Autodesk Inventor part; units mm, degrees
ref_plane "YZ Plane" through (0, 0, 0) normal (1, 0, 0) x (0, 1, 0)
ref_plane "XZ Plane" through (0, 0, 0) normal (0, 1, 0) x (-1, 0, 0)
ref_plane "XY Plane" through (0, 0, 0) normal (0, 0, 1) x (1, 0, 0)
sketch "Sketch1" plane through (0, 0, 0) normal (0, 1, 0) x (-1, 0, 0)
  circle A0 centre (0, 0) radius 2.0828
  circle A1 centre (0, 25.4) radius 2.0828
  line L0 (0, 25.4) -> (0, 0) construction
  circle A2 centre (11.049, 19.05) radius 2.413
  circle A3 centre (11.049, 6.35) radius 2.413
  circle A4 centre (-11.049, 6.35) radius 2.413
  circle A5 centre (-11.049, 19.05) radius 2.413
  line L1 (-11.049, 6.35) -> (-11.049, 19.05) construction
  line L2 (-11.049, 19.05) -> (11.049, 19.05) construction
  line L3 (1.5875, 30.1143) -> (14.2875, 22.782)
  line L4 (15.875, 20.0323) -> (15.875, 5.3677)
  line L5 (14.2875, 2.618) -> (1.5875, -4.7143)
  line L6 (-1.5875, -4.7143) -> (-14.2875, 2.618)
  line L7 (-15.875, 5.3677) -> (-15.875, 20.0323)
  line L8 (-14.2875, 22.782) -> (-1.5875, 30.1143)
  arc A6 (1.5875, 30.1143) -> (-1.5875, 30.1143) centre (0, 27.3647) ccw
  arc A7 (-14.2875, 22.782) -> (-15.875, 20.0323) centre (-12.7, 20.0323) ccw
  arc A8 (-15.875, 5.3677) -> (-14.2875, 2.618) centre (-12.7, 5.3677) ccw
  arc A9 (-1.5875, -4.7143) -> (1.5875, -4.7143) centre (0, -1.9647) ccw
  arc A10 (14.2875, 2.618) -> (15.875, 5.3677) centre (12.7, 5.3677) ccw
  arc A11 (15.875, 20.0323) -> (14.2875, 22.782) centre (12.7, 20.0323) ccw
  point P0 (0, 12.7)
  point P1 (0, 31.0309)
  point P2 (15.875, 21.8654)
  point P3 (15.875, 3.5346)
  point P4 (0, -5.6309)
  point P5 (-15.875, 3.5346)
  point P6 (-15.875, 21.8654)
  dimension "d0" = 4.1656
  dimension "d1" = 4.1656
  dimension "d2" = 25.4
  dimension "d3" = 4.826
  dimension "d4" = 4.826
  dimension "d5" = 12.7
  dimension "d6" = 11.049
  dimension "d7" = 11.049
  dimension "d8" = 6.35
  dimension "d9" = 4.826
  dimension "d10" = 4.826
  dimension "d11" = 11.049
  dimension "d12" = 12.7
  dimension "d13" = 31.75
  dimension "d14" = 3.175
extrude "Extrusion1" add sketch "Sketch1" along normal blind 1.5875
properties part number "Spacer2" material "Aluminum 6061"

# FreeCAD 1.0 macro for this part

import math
import FreeCAD as App
import Part
import Sketcher

V = App.Vector
Q = App.Units.Quantity

doc = App.newDocument("Part")
body = doc.addObject("PartDesign::Body", "Body")

# Sketch on XZ plane
sketch1 = body.newObject("Sketcher::SketchObject", "Sketch")
sketch1.AttachmentSupport = (doc.getObject("XZ_Plane"), [""])
sketch1.MapMode = "FlatFace"
sketch1.addGeometry([
    Part.LineSegment(V(-14.3, 22.8, 0), V(-1.6, 30.1, 0)),  # 0
    Part.ArcOfCircle(Part.Circle(V(0, 27.4, 0), V(0, 0, 1), 3.2), math.radians(60), math.radians(120)),  # 1
    Part.LineSegment(V(1.6, 30.1, 0), V(14.3, 22.8, 0)),  # 2
    Part.ArcOfCircle(Part.Circle(V(12.7, 20, 0), V(0, 0, 1), 3.2), math.radians(0), math.radians(60)),  # 3
    Part.LineSegment(V(15.9, 20, 0), V(15.9, 5.4, 0)),  # 4
    Part.ArcOfCircle(Part.Circle(V(12.7, 5.4, 0), V(0, 0, 1), 3.2), math.radians(-60), math.radians(0)),  # 5
    Part.LineSegment(V(14.3, 2.6, 0), V(1.6, -4.7, 0)),  # 6
    Part.ArcOfCircle(Part.Circle(V(0, -2, 0), V(0, 0, 1), 3.2), math.radians(-120), math.radians(-60)),  # 7
    Part.LineSegment(V(-1.6, -4.7, 0), V(-14.3, 2.6, 0)),  # 8
    Part.ArcOfCircle(Part.Circle(V(-12.7, 5.4, 0), V(0, 0, 1), 3.2), math.radians(180), math.radians(240)),  # 9
    Part.LineSegment(V(-15.9, 5.4, 0), V(-15.9, 20, 0)),  # 10
    Part.ArcOfCircle(Part.Circle(V(-12.7, 20, 0), V(0, 0, 1), 3.2), math.radians(120), math.radians(180)),  # 11
    Part.Circle(V(11, 6.3, 0), V(0, 0, 1), 2.4),  # 12
    Part.Circle(V(0, 0, 0), V(0, 0, 1), 2.1),  # 13
    Part.Circle(V(-11, 6.3, 0), V(0, 0, 1), 2.4),  # 14
    Part.Circle(V(11, 19.1, 0), V(0, 0, 1), 2.4),  # 15
    Part.Circle(V(-11, 19.1, 0), V(0, 0, 1), 2.4),  # 16
    Part.Circle(V(0, 25.4, 0), V(0, 0, 1), 2.1),  # 17
], False)
sketch1.addConstraint([
    Sketcher.Constraint("Tangent", 0, 2, 1, 2),
    Sketcher.Constraint("Tangent", 1, 1, 2, 1),
    Sketcher.Constraint("Tangent", 2, 2, 3, 2),
    Sketcher.Constraint("Tangent", 3, 1, 4, 1),
    Sketcher.Constraint("Tangent", 4, 2, 5, 2),
    Sketcher.Constraint("Tangent", 5, 1, 6, 1),
    Sketcher.Constraint("Tangent", 6, 2, 7, 2),
    Sketcher.Constraint("Tangent", 7, 1, 8, 1),
    Sketcher.Constraint("Tangent", 8, 2, 9, 2),
    Sketcher.Constraint("Tangent", 9, 1, 10, 1),
    Sketcher.Constraint("Tangent", 10, 2, 11, 2),
    Sketcher.Constraint("Tangent", 11, 1, 0, 1),
    Sketcher.Constraint("Vertical", 4),
    Sketcher.Constraint("Vertical", 10),
    Sketcher.Constraint("Coincident", 13, 3, -1, 1),
    Sketcher.Constraint("Equal", 1, 3),
    Sketcher.Constraint("Equal", 3, 5),
    Sketcher.Constraint("Equal", 5, 7),
    Sketcher.Constraint("Equal", 7, 9),
    Sketcher.Constraint("Equal", 9, 11),
    Sketcher.Constraint("Equal", 12, 14),
    Sketcher.Constraint("Equal", 14, 15),
    Sketcher.Constraint("Equal", 15, 16),
    Sketcher.Constraint("Equal", 13, 17),
    Sketcher.Constraint("Symmetric", 5, 3, 9, 3, -2),
    Sketcher.Constraint("Symmetric", 12, 3, 14, 3, -2),
    Sketcher.Constraint("Symmetric", 15, 3, 16, 3, -2),
    Sketcher.Constraint("Symmetric", 0, 2, 1, 1, -2),
    Sketcher.Constraint("PointOnObject", 7, 3, -2),
    Sketcher.Constraint("PointOnObject", 17, 3, -2),
    Sketcher.Constraint("Parallel", 0, 6),
    Sketcher.Constraint("Vertical", 12, 3, 15, 3),
    Sketcher.Constraint("Diameter", 12, Q("0.19 in")),
    Sketcher.Constraint("Diameter", 13, Q("0.164 in")),
    Sketcher.Constraint("DistanceY", -1, 1, 17, 3, Q("1 in")),
    Sketcher.Constraint("Radius", 1, Q("0.125 in")),
    Sketcher.Constraint("DistanceX", 9, 3, 5, 3, Q("1 in")),
    Sketcher.Constraint("DistanceY", 12, 3, 15, 3, Q("0.5 in")),
    Sketcher.Constraint("DistanceY", -1, 1, 12, 3, Q("0.25 in")),
    Sketcher.Constraint("DistanceX", 15, 3, 3, 1, Q("0.19 in")),
    Sketcher.Constraint("Angle", 0, Q("29.9998 deg")),
    Sketcher.Constraint("DistanceY", 4, 2, 4, 1, Q("14.6646 mm")),
    Sketcher.Constraint("DistanceY", -1, 1, 0, 2, Q("1.1856 in")),
])
pad1 = body.newObject("PartDesign::Pad", "Pad")
pad1.Profile = sketch1
pad1.Length = Q("0.0625 in")
pad1.Reversed = True

doc.recompute()
